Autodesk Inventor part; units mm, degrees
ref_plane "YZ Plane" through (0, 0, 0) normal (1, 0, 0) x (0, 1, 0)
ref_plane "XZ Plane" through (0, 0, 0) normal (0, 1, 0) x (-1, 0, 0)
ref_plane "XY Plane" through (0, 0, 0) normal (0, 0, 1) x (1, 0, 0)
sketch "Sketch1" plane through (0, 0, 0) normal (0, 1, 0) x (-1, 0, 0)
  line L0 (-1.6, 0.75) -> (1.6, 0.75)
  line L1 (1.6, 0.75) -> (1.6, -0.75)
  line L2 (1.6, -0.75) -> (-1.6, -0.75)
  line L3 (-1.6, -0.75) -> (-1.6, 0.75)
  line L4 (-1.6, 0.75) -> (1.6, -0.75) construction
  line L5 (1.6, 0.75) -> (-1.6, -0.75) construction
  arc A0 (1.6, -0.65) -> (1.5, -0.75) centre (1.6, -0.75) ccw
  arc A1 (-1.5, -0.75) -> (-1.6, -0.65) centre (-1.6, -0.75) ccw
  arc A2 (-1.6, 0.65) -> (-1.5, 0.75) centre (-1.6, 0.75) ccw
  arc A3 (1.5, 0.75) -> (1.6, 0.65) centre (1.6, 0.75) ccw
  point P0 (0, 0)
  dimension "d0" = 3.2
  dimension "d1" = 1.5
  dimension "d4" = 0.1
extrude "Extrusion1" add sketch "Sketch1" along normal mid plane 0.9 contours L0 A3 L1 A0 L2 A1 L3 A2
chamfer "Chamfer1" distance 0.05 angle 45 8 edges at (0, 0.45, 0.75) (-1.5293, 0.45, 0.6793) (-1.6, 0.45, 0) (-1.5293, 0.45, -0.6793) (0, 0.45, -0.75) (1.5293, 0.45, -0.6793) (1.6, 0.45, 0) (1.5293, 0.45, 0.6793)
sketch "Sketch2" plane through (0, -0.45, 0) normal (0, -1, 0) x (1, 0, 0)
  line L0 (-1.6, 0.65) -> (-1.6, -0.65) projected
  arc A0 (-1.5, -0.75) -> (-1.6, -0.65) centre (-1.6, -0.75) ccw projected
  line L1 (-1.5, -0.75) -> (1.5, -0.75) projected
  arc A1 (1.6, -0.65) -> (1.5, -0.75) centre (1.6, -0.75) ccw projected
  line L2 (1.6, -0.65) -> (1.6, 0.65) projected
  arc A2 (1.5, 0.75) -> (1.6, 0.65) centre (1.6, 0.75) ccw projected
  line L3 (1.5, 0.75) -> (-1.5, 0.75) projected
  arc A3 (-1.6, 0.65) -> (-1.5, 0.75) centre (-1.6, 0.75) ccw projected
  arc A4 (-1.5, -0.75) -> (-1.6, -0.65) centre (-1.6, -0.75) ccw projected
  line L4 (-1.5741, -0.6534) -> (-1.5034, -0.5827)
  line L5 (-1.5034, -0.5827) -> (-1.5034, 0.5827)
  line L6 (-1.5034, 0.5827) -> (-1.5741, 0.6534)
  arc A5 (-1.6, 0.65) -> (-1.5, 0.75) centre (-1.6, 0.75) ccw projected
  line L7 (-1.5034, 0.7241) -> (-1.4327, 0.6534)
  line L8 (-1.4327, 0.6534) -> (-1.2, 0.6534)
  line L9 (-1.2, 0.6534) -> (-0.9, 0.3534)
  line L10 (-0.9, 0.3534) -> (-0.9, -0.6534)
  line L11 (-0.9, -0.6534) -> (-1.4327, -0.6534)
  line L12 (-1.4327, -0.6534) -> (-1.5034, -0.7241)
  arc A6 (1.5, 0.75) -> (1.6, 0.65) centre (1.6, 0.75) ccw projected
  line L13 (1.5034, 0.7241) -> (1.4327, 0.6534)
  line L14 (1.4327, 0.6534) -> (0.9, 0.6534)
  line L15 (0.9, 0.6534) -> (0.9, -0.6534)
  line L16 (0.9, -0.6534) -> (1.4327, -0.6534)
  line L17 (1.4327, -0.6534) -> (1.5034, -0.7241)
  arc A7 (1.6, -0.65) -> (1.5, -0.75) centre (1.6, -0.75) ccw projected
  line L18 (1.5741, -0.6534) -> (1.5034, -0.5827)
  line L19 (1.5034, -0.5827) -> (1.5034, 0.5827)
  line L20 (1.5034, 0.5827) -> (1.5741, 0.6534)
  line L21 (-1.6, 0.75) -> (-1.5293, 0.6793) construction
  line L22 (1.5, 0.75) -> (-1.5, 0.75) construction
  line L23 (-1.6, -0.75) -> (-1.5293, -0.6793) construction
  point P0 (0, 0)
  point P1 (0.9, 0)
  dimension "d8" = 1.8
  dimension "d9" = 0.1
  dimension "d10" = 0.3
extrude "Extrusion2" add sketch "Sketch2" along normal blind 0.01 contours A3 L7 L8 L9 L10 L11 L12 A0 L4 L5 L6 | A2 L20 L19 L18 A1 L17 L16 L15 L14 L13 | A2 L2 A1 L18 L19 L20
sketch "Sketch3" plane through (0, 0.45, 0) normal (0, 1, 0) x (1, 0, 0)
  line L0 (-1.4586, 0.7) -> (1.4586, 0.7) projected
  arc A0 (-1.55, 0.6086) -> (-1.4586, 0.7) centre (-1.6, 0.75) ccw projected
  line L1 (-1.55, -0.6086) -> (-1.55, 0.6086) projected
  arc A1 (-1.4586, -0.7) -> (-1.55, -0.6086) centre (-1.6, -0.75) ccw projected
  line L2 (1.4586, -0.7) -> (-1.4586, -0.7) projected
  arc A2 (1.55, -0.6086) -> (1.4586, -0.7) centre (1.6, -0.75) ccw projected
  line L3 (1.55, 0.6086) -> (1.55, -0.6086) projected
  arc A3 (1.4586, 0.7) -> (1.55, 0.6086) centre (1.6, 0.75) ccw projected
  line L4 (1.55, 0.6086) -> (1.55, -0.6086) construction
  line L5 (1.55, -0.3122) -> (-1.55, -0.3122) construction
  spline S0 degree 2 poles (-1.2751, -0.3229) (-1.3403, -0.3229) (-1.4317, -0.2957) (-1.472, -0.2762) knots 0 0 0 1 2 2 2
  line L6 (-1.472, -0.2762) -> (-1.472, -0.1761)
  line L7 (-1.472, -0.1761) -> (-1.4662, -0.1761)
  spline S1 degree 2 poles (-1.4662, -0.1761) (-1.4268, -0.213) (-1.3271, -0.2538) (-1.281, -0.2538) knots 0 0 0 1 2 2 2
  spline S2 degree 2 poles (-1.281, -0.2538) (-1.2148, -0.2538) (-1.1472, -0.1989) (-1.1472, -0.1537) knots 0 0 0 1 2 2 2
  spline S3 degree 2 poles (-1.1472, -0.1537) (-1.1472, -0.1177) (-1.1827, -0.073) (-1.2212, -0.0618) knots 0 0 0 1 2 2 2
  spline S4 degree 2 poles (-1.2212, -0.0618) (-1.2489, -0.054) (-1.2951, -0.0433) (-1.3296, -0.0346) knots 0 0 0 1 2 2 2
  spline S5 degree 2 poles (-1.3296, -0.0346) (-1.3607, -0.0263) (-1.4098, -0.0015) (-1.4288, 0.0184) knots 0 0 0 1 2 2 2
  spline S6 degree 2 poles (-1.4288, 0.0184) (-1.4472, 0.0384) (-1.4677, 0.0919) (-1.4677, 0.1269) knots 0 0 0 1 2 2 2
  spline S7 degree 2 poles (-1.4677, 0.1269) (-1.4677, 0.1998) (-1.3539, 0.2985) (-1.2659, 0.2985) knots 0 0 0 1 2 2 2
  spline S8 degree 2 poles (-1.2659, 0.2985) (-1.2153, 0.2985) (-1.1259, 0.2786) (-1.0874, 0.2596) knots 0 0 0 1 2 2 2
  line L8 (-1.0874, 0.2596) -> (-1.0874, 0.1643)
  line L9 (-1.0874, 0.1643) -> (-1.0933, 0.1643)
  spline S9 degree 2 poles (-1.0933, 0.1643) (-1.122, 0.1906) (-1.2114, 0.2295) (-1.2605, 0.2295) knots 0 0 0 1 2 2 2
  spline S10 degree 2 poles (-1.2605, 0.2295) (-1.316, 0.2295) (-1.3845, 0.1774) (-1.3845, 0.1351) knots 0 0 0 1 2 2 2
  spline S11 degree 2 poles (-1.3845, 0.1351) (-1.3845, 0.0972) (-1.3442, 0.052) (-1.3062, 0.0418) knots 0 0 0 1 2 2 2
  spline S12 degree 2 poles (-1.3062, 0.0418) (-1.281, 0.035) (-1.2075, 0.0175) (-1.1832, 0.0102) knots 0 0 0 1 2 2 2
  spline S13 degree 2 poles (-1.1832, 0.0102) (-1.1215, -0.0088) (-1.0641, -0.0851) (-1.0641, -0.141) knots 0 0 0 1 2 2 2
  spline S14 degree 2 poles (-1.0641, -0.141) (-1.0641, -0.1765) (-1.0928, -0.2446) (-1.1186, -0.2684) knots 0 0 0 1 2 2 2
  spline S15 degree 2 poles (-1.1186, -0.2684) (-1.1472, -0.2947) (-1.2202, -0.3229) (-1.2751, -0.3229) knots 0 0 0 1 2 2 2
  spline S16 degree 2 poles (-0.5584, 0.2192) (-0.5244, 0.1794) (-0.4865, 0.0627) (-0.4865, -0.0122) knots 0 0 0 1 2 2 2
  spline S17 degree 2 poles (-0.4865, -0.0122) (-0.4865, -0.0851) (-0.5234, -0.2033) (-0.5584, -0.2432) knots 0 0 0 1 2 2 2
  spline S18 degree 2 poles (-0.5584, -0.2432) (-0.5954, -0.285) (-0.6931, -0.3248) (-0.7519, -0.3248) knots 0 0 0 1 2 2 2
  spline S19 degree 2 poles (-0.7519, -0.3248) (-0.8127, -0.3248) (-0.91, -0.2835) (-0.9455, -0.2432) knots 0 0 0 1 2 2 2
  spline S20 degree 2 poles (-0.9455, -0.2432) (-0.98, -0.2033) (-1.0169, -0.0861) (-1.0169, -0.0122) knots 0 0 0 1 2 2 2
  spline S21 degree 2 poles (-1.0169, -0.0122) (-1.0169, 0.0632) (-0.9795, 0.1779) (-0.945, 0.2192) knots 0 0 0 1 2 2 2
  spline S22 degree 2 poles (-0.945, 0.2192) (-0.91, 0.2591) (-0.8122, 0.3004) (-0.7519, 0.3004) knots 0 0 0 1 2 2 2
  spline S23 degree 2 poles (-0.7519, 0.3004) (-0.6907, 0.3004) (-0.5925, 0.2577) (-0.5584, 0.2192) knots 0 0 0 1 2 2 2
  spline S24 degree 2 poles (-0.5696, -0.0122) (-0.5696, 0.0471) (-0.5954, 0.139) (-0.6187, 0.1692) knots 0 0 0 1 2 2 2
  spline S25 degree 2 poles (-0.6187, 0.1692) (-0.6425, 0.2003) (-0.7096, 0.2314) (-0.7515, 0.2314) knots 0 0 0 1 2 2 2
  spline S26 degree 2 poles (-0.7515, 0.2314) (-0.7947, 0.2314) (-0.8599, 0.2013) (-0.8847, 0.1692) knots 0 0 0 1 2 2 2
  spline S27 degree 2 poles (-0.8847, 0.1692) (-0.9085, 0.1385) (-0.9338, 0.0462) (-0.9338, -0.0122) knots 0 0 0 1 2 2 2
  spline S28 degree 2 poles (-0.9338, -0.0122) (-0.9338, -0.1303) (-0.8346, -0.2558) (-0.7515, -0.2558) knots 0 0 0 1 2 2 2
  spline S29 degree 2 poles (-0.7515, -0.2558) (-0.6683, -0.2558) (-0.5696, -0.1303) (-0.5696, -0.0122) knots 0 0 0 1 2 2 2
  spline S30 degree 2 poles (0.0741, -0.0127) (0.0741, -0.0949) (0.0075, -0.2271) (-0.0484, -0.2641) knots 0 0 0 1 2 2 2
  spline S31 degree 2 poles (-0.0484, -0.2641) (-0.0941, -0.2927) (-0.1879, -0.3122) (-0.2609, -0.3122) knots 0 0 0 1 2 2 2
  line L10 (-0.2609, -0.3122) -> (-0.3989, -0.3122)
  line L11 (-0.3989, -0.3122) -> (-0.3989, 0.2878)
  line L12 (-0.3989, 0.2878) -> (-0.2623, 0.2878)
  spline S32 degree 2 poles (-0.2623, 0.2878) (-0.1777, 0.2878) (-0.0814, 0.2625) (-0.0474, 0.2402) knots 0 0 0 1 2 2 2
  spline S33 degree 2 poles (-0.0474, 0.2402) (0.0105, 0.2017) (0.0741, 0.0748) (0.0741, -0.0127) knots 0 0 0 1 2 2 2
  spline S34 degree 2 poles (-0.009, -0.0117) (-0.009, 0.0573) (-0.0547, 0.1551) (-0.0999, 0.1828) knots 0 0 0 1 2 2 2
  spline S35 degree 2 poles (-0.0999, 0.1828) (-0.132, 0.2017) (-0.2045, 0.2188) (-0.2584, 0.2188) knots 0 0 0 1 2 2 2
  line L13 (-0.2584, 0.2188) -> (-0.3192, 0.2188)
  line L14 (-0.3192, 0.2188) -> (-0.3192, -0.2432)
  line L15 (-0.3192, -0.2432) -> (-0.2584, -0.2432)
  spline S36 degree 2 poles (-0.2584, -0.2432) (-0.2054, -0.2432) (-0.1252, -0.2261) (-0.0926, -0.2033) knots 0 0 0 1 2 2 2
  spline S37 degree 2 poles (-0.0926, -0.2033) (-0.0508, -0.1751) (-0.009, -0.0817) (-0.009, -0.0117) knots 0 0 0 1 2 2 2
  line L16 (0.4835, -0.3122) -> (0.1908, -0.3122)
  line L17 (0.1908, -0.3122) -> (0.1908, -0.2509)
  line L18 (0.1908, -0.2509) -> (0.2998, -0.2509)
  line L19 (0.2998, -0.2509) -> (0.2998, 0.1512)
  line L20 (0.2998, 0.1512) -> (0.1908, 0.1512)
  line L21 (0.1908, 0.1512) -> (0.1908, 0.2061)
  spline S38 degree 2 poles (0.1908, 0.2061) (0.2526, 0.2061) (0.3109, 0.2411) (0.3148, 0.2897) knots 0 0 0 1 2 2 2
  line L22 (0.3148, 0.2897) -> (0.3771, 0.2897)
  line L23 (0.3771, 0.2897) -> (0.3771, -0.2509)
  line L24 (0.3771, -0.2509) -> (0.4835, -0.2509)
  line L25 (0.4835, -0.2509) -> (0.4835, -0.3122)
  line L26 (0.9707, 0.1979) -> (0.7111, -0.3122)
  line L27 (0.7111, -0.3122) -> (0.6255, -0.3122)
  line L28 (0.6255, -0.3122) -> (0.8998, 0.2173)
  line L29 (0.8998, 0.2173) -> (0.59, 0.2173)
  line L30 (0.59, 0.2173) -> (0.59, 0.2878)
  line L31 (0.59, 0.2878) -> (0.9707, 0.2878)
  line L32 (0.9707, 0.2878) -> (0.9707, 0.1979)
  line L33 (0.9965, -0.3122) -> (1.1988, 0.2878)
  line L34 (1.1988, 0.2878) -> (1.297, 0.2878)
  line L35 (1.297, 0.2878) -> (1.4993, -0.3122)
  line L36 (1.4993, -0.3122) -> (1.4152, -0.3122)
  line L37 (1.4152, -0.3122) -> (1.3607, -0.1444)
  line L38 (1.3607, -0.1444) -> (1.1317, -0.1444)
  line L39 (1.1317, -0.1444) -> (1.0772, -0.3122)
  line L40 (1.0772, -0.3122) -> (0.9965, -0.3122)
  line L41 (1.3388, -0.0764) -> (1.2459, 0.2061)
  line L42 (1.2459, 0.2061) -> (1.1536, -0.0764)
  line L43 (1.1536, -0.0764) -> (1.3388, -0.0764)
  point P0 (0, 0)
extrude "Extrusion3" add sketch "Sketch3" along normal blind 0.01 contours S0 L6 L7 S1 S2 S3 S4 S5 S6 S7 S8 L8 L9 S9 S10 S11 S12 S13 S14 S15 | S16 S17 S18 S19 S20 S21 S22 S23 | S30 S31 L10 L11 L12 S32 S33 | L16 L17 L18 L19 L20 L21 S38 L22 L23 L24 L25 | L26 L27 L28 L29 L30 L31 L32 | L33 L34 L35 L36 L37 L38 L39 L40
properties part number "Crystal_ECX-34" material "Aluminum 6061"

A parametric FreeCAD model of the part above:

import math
import FreeCAD as App
import Part
import Sketcher


def edges_at(feature, points):
    """Names of the edges that pass closest to the given points."""
    edges = feature.Shape.Edges
    near = lambda p: min(range(len(edges)), key=lambda i: edges[i].distToShape(Part.Vertex(*p))[0])
    return sorted({f"Edge{near(p) + 1}" for p in points})

doc = App.newDocument("Part")
body = doc.addObject("PartDesign::Body", "Body")

# Sketch on XZ plane
sketch1 = body.newObject("Sketcher::SketchObject", "Sketch")
sketch1.AttachmentSupport = (doc.getObject("XZ_Plane"), [""])
sketch1.MapMode = "FlatFace"
sketch1.addGeometry([
    Part.LineSegment(App.Vector(-1.5, 0.75, 0), App.Vector(1.5, 0.75, 0)),  # 0
    Part.ArcOfCircle(Part.Circle(App.Vector(1.6, 0.75, 0), App.Vector(0, 0, 1), 0.1), math.radians(180), math.radians(270)),  # 1
    Part.LineSegment(App.Vector(1.6, 0.65, 0), App.Vector(1.6, -0.65, 0)),  # 2
    Part.ArcOfCircle(Part.Circle(App.Vector(1.6, -0.75, 0), App.Vector(0, 0, 1), 0.1), math.radians(90), math.radians(180)),  # 3
    Part.LineSegment(App.Vector(1.5, -0.75, 0), App.Vector(-1.5, -0.75, 0)),  # 4
    Part.ArcOfCircle(Part.Circle(App.Vector(-1.6, -0.75, 0), App.Vector(0, 0, 1), 0.1), math.radians(0), math.radians(90)),  # 5
    Part.LineSegment(App.Vector(-1.6, -0.65, 0), App.Vector(-1.6, 0.65, 0)),  # 6
    Part.ArcOfCircle(Part.Circle(App.Vector(-1.6, 0.75, 0), App.Vector(0, 0, 1), 0.1), math.radians(-90), math.radians(0)),  # 7
], False)
sketch1.addConstraint([
    Sketcher.Constraint("Coincident", 0, 2, 1, 1),
    Sketcher.Constraint("Coincident", 1, 2, 2, 1),
    Sketcher.Constraint("Coincident", 2, 2, 3, 1),
    Sketcher.Constraint("Coincident", 3, 2, 4, 1),
    Sketcher.Constraint("Coincident", 4, 2, 5, 1),
    Sketcher.Constraint("Coincident", 5, 2, 6, 1),
    Sketcher.Constraint("Coincident", 6, 2, 7, 1),
    Sketcher.Constraint("Coincident", 7, 2, 0, 1),
    Sketcher.Constraint("Horizontal", 0),
    Sketcher.Constraint("Vertical", 2),
    Sketcher.Constraint("Horizontal", 4),
    Sketcher.Constraint("Vertical", 6),
    Sketcher.Constraint("Equal", 1, 3),
    Sketcher.Constraint("Equal", 3, 5),
    Sketcher.Constraint("Equal", 5, 7),
    Sketcher.Constraint("Symmetric", 1, 3, 5, 3, -1, 1),
    Sketcher.Constraint("Symmetric", 3, 3, 7, 3, -1, 1),
    Sketcher.Constraint("Symmetric", 3, 3, 5, 3, -2),
    Sketcher.Constraint("Horizontal", 7, 3, 0, 2),
    Sketcher.Constraint("Horizontal", 5, 3, 3, 2),
    Sketcher.Constraint("Vertical", 3, 3, 1, 2),
    Sketcher.Constraint("Vertical", 7, 3, 5, 2),
    Sketcher.Constraint("Radius", 1, 0.1),
    Sketcher.Constraint("DistanceX", -1, 1, 0, 2, 1.5),
    Sketcher.Constraint("DistanceY", 3, 3, 1, 3, 1.5),
])
pad1 = body.newObject("PartDesign::Pad", "Pad")
pad1.Profile = sketch1
pad1.Length = 0.9
pad1.Midplane = True
doc.recompute()

chamfer = body.newObject("PartDesign::Chamfer", "Chamfer")
chamfer.Base = (pad1, edges_at(pad1, [
    (0, 0.45, 0.75),
    (-1.529, 0.45, 0.679),
    (-1.6, 0.45, 0),
    (-1.529, 0.45, -0.679),
    (0, 0.45, -0.75),
    (1.529, 0.45, -0.679),
    (1.6, 0.45, 0),
    (1.529, 0.45, 0.679),
]))
chamfer.Size = 0.05

# Sketch on XZ plane
sketch2 = body.newObject("Sketcher::SketchObject", "Sketch001")
sketch2.AttachmentSupport = (doc.getObject("XZ_Plane"), [""])
sketch2.MapMode = "FlatFace"
sketch2.AttachmentOffset = App.Placement(App.Vector(0, 0, 0.45), App.Rotation())
sketch2.addGeometry([
    Part.ArcOfCircle(Part.Circle(App.Vector(-1.6, 0.75, 0), App.Vector(0, 0, 1), 0.1), math.radians(-74.991087), math.radians(-15.008913)),  # 0
    Part.LineSegment(App.Vector(-1.5741, 0.6534, 0), App.Vector(-1.5034, 0.5827, 0)),  # 1
    Part.LineSegment(App.Vector(-1.5034, 0.5827, 0), App.Vector(-1.5034, -0.5827, 0)),  # 2
    Part.LineSegment(App.Vector(-1.5034, -0.5827, 0), App.Vector(-1.5741, -0.6534, 0)),  # 3
    Part.ArcOfCircle(Part.Circle(App.Vector(-1.6, -0.75, 0), App.Vector(0, 0, 1), 0.1), math.radians(15.008913), math.radians(74.991087)),  # 4
    Part.LineSegment(App.Vector(-1.5034, -0.7241, 0), App.Vector(-1.4327, -0.6534, 0)),  # 5
    Part.LineSegment(App.Vector(-1.4327, -0.6534, 0), App.Vector(-0.9, -0.6534, 0)),  # 6
    Part.LineSegment(App.Vector(-0.9, -0.6534, 0), App.Vector(-0.9, 0.3534, 0)),  # 7
    Part.LineSegment(App.Vector(-0.9, 0.3534, 0), App.Vector(-1.2, 0.6534, 0)),  # 8
    Part.LineSegment(App.Vector(-1.2, 0.6534, 0), App.Vector(-1.4327, 0.6534, 0)),  # 9
    Part.LineSegment(App.Vector(-1.4327, 0.6534, 0), App.Vector(-1.5034, 0.7241, 0)),  # 10
    Part.LineSegment(App.Vector(1.5034, 0.7241, 0), App.Vector(1.4327, 0.6534, 0)),  # 11
    Part.LineSegment(App.Vector(1.4327, 0.6534, 0), App.Vector(0.9, 0.6534, 0)),  # 12
    Part.LineSegment(App.Vector(0.9, 0.6534, 0), App.Vector(0.9, -0.6534, 0)),  # 13
    Part.LineSegment(App.Vector(0.9, -0.6534, 0), App.Vector(1.4327, -0.6534, 0)),  # 14
    Part.LineSegment(App.Vector(1.4327, -0.6534, 0), App.Vector(1.5034, -0.7241, 0)),  # 15
    Part.ArcOfCircle(Part.Circle(App.Vector(1.6, -0.75, 0), App.Vector(0, 0, 1), 0.1), math.radians(90), math.radians(164.991087)),  # 16
    Part.LineSegment(App.Vector(1.6, -0.65, 0), App.Vector(1.6, 0.65, 0)),  # 17
    Part.ArcOfCircle(Part.Circle(App.Vector(1.6, 0.75, 0), App.Vector(0, 0, 1), 0.1), math.radians(-164.991087), math.radians(-90)),  # 18
], False)
sketch2.addConstraint([
    Sketcher.Constraint("Coincident", 0, 1, 1, 1),
    Sketcher.Constraint("Coincident", 1, 2, 2, 1),
    Sketcher.Constraint("Coincident", 2, 2, 3, 1),
    Sketcher.Constraint("Coincident", 3, 2, 4, 2),
    Sketcher.Constraint("Coincident", 4, 1, 5, 1),
    Sketcher.Constraint("Coincident", 5, 2, 6, 1),
    Sketcher.Constraint("Coincident", 6, 2, 7, 1),
    Sketcher.Constraint("Coincident", 7, 2, 8, 1),
    Sketcher.Constraint("Coincident", 8, 2, 9, 1),
    Sketcher.Constraint("Coincident", 9, 2, 10, 1),
    Sketcher.Constraint("Coincident", 10, 2, 0, 2),
    Sketcher.Constraint("Coincident", 11, 2, 12, 1),
    Sketcher.Constraint("Coincident", 12, 2, 13, 1),
    Sketcher.Constraint("Coincident", 13, 2, 14, 1),
    Sketcher.Constraint("Coincident", 14, 2, 15, 1),
    Sketcher.Constraint("Coincident", 15, 2, 16, 2),
    Sketcher.Constraint("Coincident", 16, 1, 17, 1),
    Sketcher.Constraint("Coincident", 17, 2, 18, 2),
    Sketcher.Constraint("Coincident", 18, 1, 11, 1),
    Sketcher.Constraint("Vertical", 2),
    Sketcher.Constraint("Horizontal", 6),
    Sketcher.Constraint("Vertical", 7),
    Sketcher.Constraint("Horizontal", 9),
    Sketcher.Constraint("Horizontal", 12),
    Sketcher.Constraint("Vertical", 13),
    Sketcher.Constraint("Horizontal", 14),
    Sketcher.Constraint("Vertical", 17),
    Sketcher.Constraint("Equal", 0, 4),
    Sketcher.Constraint("Equal", 4, 16),
    Sketcher.Constraint("Equal", 16, 18),
    Sketcher.Constraint("Symmetric", 0, 3, 16, 3, -1, 1),
    Sketcher.Constraint("Symmetric", 4, 3, 18, 3, -1, 1),
    Sketcher.Constraint("Symmetric", 5, 2, 11, 2, -1, 1),
    Sketcher.Constraint("Symmetric", 9, 2, 14, 2, -1, 1),
    Sketcher.Constraint("Symmetric", 4, 3, 16, 3, -2),
    Sketcher.Constraint("Symmetric", 9, 2, 11, 2, -2),
    Sketcher.Constraint("Perpendicular", 1, 3),
    Sketcher.Constraint("Parallel", 3, 5),
    Sketcher.Constraint("Perpendicular", 5, 8),
    Sketcher.Constraint("Parallel", 8, 10),
    Sketcher.Constraint("Perpendicular", 10, 11),
    Sketcher.Constraint("Perpendicular", 11, 15),
    Sketcher.Constraint("Horizontal", 3, 2, 5, 2),
    Sketcher.Constraint("Horizontal", 0, 1, 8, 2),
    Sketcher.Constraint("Horizontal", 4, 1, 15, 2),
    Sketcher.Constraint("Vertical", 2, 2, 4, 1),
    Sketcher.Constraint("Vertical", 18, 3, 16, 1),
    Sketcher.Constraint("Equal", 6, 12),
    Sketcher.Constraint("Equal", 3, 5),
    Sketcher.Constraint("Radius", 0, 0.1),
    Sketcher.Constraint("Distance", 1, 0.1),
    Sketcher.Constraint("DistanceY", 7, 2, 0, 1, 0.3),
    Sketcher.Constraint("DistanceX", 7, 2, 12, 2, 1.8),
    Sketcher.Constraint("DistanceY", 17, 1, 17, 2, 1.3),
    Sketcher.Constraint("DistanceX", 0, 3, -1, 1, 1.6),
])
pad2 = body.newObject("PartDesign::Pad", "Pad001")
pad2.Profile = sketch2
pad2.Length = 0.01

# Sketch on XZ plane
sketch3 = body.newObject("Sketcher::SketchObject", "Sketch002")
sketch3.AttachmentSupport = (doc.getObject("XZ_Plane"), [""])
sketch3.MapMode = "FlatFace"
sketch3.AttachmentOffset = App.Placement(App.Vector(0, 0, -0.45), App.Rotation())
sketch3.addGeometry([
    Part.BSplineCurve([App.Vector(-1.2751, 0.3229, 0), App.Vector(-1.3403, 0.3229, 0), App.Vector(-1.4317, 0.2957, 0), App.Vector(-1.472, 0.2762, 0)], [3, 1, 3], [0, 1, 2], False, 2, [1, 1, 1, 1], False),  # 0
    Part.BSplineCurve([App.Vector(-1.1186, 0.2684, 0), App.Vector(-1.1472, 0.2947, 0), App.Vector(-1.2202, 0.3229, 0), App.Vector(-1.2751, 0.3229, 0)], [3, 1, 3], [0, 1, 2], False, 2, [1, 1, 1, 1], False),  # 1
    Part.BSplineCurve([App.Vector(-1.0641, 0.141, 0), App.Vector(-1.0641, 0.1765, 0), App.Vector(-1.0928, 0.2446, 0), App.Vector(-1.1186, 0.2684, 0)], [3, 1, 3], [0, 1, 2], False, 2, [1, 1, 1, 1], False),  # 2
    Part.BSplineCurve([App.Vector(-1.1832, -0.0102, 0), App.Vector(-1.1215, 0.0088, 0), App.Vector(-1.0641, 0.0851, 0), App.Vector(-1.0641, 0.141, 0)], [3, 1, 3], [0, 1, 2], False, 2, [1, 1, 1, 1], False),  # 3
    Part.BSplineCurve([App.Vector(-1.3062, -0.0418, 0), App.Vector(-1.281, -0.035, 0), App.Vector(-1.2075, -0.0175, 0), App.Vector(-1.1832, -0.0102, 0)], [3, 1, 3], [0, 1, 2], False, 2, [1, 1, 1, 1], False),  # 4
    Part.BSplineCurve([App.Vector(-1.3845, -0.1351, 0), App.Vector(-1.3845, -0.0972, 0), App.Vector(-1.3442, -0.052, 0), App.Vector(-1.3062, -0.0418, 0)], [3, 1, 3], [0, 1, 2], False, 2, [1, 1, 1, 1], False),  # 5
    Part.BSplineCurve([App.Vector(-1.2605, -0.2295, 0), App.Vector(-1.316, -0.2295, 0), App.Vector(-1.3845, -0.1774, 0), App.Vector(-1.3845, -0.1351, 0)], [3, 1, 3], [0, 1, 2], False, 2, [1, 1, 1, 1], False),  # 6
    Part.BSplineCurve([App.Vector(-1.0933, -0.1643, 0), App.Vector(-1.122, -0.1906, 0), App.Vector(-1.2114, -0.2295, 0), App.Vector(-1.2605, -0.2295, 0)], [3, 1, 3], [0, 1, 2], False, 2, [1, 1, 1, 1], False),  # 7
    Part.LineSegment(App.Vector(-1.0933, -0.1643, 0), App.Vector(-1.0874, -0.1643, 0)),  # 8
    Part.LineSegment(App.Vector(-1.0874, -0.1643, 0), App.Vector(-1.0874, -0.2596, 0)),  # 9
    Part.BSplineCurve([App.Vector(-1.2659, -0.2985, 0), App.Vector(-1.2153, -0.2985, 0), App.Vector(-1.1259, -0.2786, 0), App.Vector(-1.0874, -0.2596, 0)], [3, 1, 3], [0, 1, 2], False, 2, [1, 1, 1, 1], False),  # 10
    Part.BSplineCurve([App.Vector(-1.4677, -0.1269, 0), App.Vector(-1.4677, -0.1998, 0), App.Vector(-1.3539, -0.2985, 0), App.Vector(-1.2659, -0.2985, 0)], [3, 1, 3], [0, 1, 2], False, 2, [1, 1, 1, 1], False),  # 11
    Part.BSplineCurve([App.Vector(-1.4288, -0.0184, 0), App.Vector(-1.4472, -0.0384, 0), App.Vector(-1.4677, -0.0919, 0), App.Vector(-1.4677, -0.1269, 0)], [3, 1, 3], [0, 1, 2], False, 2, [1, 1, 1, 1], False),  # 12
    Part.BSplineCurve([App.Vector(-1.3296, 0.0346, 0), App.Vector(-1.3607, 0.0263, 0), App.Vector(-1.4098, 0.0015, 0), App.Vector(-1.4288, -0.0184, 0)], [3, 1, 3], [0, 1, 2], False, 2, [1, 1, 1, 1], False),  # 13
    Part.BSplineCurve([App.Vector(-1.2212, 0.0618, 0), App.Vector(-1.2489, 0.054, 0), App.Vector(-1.2951, 0.0433, 0), App.Vector(-1.3296, 0.0346, 0)], [3, 1, 3], [0, 1, 2], False, 2, [1, 1, 1, 1], False),  # 14
    Part.BSplineCurve([App.Vector(-1.1472, 0.1537, 0), App.Vector(-1.1472, 0.1177, 0), App.Vector(-1.1827, 0.073, 0), App.Vector(-1.2212, 0.0618, 0)], [3, 1, 3], [0, 1, 2], False, 2, [1, 1, 1, 1], False),  # 15
    Part.BSplineCurve([App.Vector(-1.281, 0.2538, 0), App.Vector(-1.2148, 0.2538, 0), App.Vector(-1.1472, 0.1989, 0), App.Vector(-1.1472, 0.1537, 0)], [3, 1, 3], [0, 1, 2], False, 2, [1, 1, 1, 1], False),  # 16
    Part.BSplineCurve([App.Vector(-1.4662, 0.1761, 0), App.Vector(-1.4268, 0.213, 0), App.Vector(-1.3271, 0.2538, 0), App.Vector(-1.281, 0.2538, 0)], [3, 1, 3], [0, 1, 2], False, 2, [1, 1, 1, 1], False),  # 17
    Part.LineSegment(App.Vector(-1.4662, 0.1761, 0), App.Vector(-1.472, 0.1761, 0)),  # 18
    Part.LineSegment(App.Vector(-1.472, 0.1761, 0), App.Vector(-1.472, 0.2762, 0)),  # 19
    Part.BSplineCurve([App.Vector(-0.5584, -0.2192, 0), App.Vector(-0.5244, -0.1794, 0), App.Vector(-0.4865, -0.0627, 0), App.Vector(-0.4865, 0.0122, 0)], [3, 1, 3], [0, 1, 2], False, 2, [1, 1, 1, 1], False),  # 20
    Part.BSplineCurve([App.Vector(-0.7519, -0.3004, 0), App.Vector(-0.6907, -0.3004, 0), App.Vector(-0.5925, -0.2577, 0), App.Vector(-0.5584, -0.2192, 0)], [3, 1, 3], [0, 1, 2], False, 2, [1, 1, 1, 1], False),  # 21
    Part.BSplineCurve([App.Vector(-0.945, -0.2192, 0), App.Vector(-0.91, -0.2591, 0), App.Vector(-0.8122, -0.3004, 0), App.Vector(-0.7519, -0.3004, 0)], [3, 1, 3], [0, 1, 2], False, 2, [1, 1, 1, 1], False),  # 22
    Part.BSplineCurve([App.Vector(-1.0169, 0.0122, 0), App.Vector(-1.0169, -0.0632, 0), App.Vector(-0.9795, -0.1779, 0), App.Vector(-0.945, -0.2192, 0)], [3, 1, 3], [0, 1, 2], False, 2, [1, 1, 1, 1], False),  # 23
    Part.BSplineCurve([App.Vector(-0.9455, 0.2432, 0), App.Vector(-0.98, 0.2033, 0), App.Vector(-1.0169, 0.0861, 0), App.Vector(-1.0169, 0.0122, 0)], [3, 1, 3], [0, 1, 2], False, 2, [1, 1, 1, 1], False),  # 24
    Part.BSplineCurve([App.Vector(-0.7519, 0.3248, 0), App.Vector(-0.8127, 0.3248, 0), App.Vector(-0.91, 0.2835, 0), App.Vector(-0.9455, 0.2432, 0)], [3, 1, 3], [0, 1, 2], False, 2, [1, 1, 1, 1], False),  # 25
    Part.BSplineCurve([App.Vector(-0.5584, 0.2432, 0), App.Vector(-0.5954, 0.285, 0), App.Vector(-0.6931, 0.3248, 0), App.Vector(-0.7519, 0.3248, 0)], [3, 1, 3], [0, 1, 2], False, 2, [1, 1, 1, 1], False),  # 26
    Part.BSplineCurve([App.Vector(-0.4865, 0.0122, 0), App.Vector(-0.4865, 0.0851, 0), App.Vector(-0.5234, 0.2033, 0), App.Vector(-0.5584, 0.2432, 0)], [3, 1, 3], [0, 1, 2], False, 2, [1, 1, 1, 1], False),  # 27
    Part.BSplineCurve([App.Vector(-0.5696, 0.0122, 0), App.Vector(-0.5696, -0.0471, 0), App.Vector(-0.5954, -0.139, 0), App.Vector(-0.6187, -0.1692, 0)], [3, 1, 3], [0, 1, 2], False, 2, [1, 1, 1, 1], False),  # 28
    Part.BSplineCurve([App.Vector(-0.7515, 0.2558, 0), App.Vector(-0.6683, 0.2558, 0), App.Vector(-0.5696, 0.1303, 0), App.Vector(-0.5696, 0.0122, 0)], [3, 1, 3], [0, 1, 2], False, 2, [1, 1, 1, 1], False),  # 29
    Part.BSplineCurve([App.Vector(-0.9338, 0.0122, 0), App.Vector(-0.9338, 0.1303, 0), App.Vector(-0.8346, 0.2558, 0), App.Vector(-0.7515, 0.2558, 0)], [3, 1, 3], [0, 1, 2], False, 2, [1, 1, 1, 1], False),  # 30
    Part.BSplineCurve([App.Vector(-0.8847, -0.1692, 0), App.Vector(-0.9085, -0.1385, 0), App.Vector(-0.9338, -0.0462, 0), App.Vector(-0.9338, 0.0122, 0)], [3, 1, 3], [0, 1, 2], False, 2, [1, 1, 1, 1], False),  # 31
    Part.BSplineCurve([App.Vector(-0.7515, -0.2314, 0), App.Vector(-0.7947, -0.2314, 0), App.Vector(-0.8599, -0.2013, 0), App.Vector(-0.8847, -0.1692, 0)], [3, 1, 3], [0, 1, 2], False, 2, [1, 1, 1, 1], False),  # 32
    Part.BSplineCurve([App.Vector(-0.6187, -0.1692, 0), App.Vector(-0.6425, -0.2003, 0), App.Vector(-0.7096, -0.2314, 0), App.Vector(-0.7515, -0.2314, 0)], [3, 1, 3], [0, 1, 2], False, 2, [1, 1, 1, 1], False),  # 33
    Part.BSplineCurve([App.Vector(0.0741, 0.0127, 0), App.Vector(0.0741, 0.0949, 0), App.Vector(0.0075, 0.2271, 0), App.Vector(-0.0484, 0.2641, 0)], [3, 1, 3], [0, 1, 2], False, 2, [1, 1, 1, 1], False),  # 34
    Part.BSplineCurve([App.Vector(-0.0474, -0.2402, 0), App.Vector(0.0105, -0.2017, 0), App.Vector(0.0741, -0.0748, 0), App.Vector(0.0741, 0.0127, 0)], [3, 1, 3], [0, 1, 2], False, 2, [1, 1, 1, 1], False),  # 35
    Part.BSplineCurve([App.Vector(-0.2623, -0.2878, 0), App.Vector(-0.1777, -0.2878, 0), App.Vector(-0.0814, -0.2625, 0), App.Vector(-0.0474, -0.2402, 0)], [3, 1, 3], [0, 1, 2], False, 2, [1, 1, 1, 1], False),  # 36
    Part.LineSegment(App.Vector(-0.2623, -0.2878, 0), App.Vector(-0.3989, -0.2878, 0)),  # 37
    Part.LineSegment(App.Vector(-0.3989, -0.2878, 0), App.Vector(-0.3989, 0.3122, 0)),  # 38
    Part.LineSegment(App.Vector(-0.3989, 0.3122, 0), App.Vector(-0.2609, 0.3122, 0)),  # 39
    Part.BSplineCurve([App.Vector(-0.0484, 0.2641, 0), App.Vector(-0.0941, 0.2927, 0), App.Vector(-0.1879, 0.3122, 0), App.Vector(-0.2609, 0.3122, 0)], [3, 1, 3], [0, 1, 2], False, 2, [1, 1, 1, 1], False),  # 40
    Part.BSplineCurve([App.Vector(-0.009, 0.0117, 0), App.Vector(-0.009, -0.0573, 0), App.Vector(-0.0547, -0.1551, 0), App.Vector(-0.0999, -0.1828, 0)], [3, 1, 3], [0, 1, 2], False, 2, [1, 1, 1, 1], False),  # 41
    Part.BSplineCurve([App.Vector(-0.0926, 0.2033, 0), App.Vector(-0.0508, 0.1751, 0), App.Vector(-0.009, 0.0817, 0), App.Vector(-0.009, 0.0117, 0)], [3, 1, 3], [0, 1, 2], False, 2, [1, 1, 1, 1], False),  # 42
    Part.BSplineCurve([App.Vector(-0.2584, 0.2432, 0), App.Vector(-0.2054, 0.2432, 0), App.Vector(-0.1252, 0.2261, 0), App.Vector(-0.0926, 0.2033, 0)], [3, 1, 3], [0, 1, 2], False, 2, [1, 1, 1, 1], False),  # 43
    Part.LineSegment(App.Vector(-0.2584, 0.2432, 0), App.Vector(-0.3192, 0.2432, 0)),  # 44
    Part.LineSegment(App.Vector(-0.3192, 0.2432, 0), App.Vector(-0.3192, -0.2188, 0)),  # 45
    Part.LineSegment(App.Vector(-0.3192, -0.2188, 0), App.Vector(-0.2584, -0.2188, 0)),  # 46
    Part.BSplineCurve([App.Vector(-0.0999, -0.1828, 0), App.Vector(-0.132, -0.2017, 0), App.Vector(-0.2045, -0.2188, 0), App.Vector(-0.2584, -0.2188, 0)], [3, 1, 3], [0, 1, 2], False, 2, [1, 1, 1, 1], False),  # 47
    Part.LineSegment(App.Vector(0.1908, 0.3122, 0), App.Vector(0.4835, 0.3122, 0)),  # 48
    Part.LineSegment(App.Vector(0.4835, 0.3122, 0), App.Vector(0.4835, 0.2509, 0)),  # 49
    Part.LineSegment(App.Vector(0.4835, 0.2509, 0), App.Vector(0.3771, 0.2509, 0)),  # 50
    Part.LineSegment(App.Vector(0.3771, 0.2509, 0), App.Vector(0.3771, -0.2897, 0)),  # 51
    Part.LineSegment(App.Vector(0.3771, -0.2897, 0), App.Vector(0.3148, -0.2897, 0)),  # 52
    Part.BSplineCurve([App.Vector(0.1908, -0.2061, 0), App.Vector(0.2526, -0.2061, 0), App.Vector(0.3109, -0.2411, 0), App.Vector(0.3148, -0.2897, 0)], [3, 1, 3], [0, 1, 2], False, 2, [1, 1, 1, 1], False),  # 53
    Part.LineSegment(App.Vector(0.1908, -0.2061, 0), App.Vector(0.1908, -0.1512, 0)),  # 54
    Part.LineSegment(App.Vector(0.1908, -0.1512, 0), App.Vector(0.2998, -0.1512, 0)),  # 55
    Part.LineSegment(App.Vector(0.2998, -0.1512, 0), App.Vector(0.2998, 0.2509, 0)),  # 56
    Part.LineSegment(App.Vector(0.2998, 0.2509, 0), App.Vector(0.1908, 0.2509, 0)),  # 57
    Part.LineSegment(App.Vector(0.1908, 0.2509, 0), App.Vector(0.1908, 0.3122, 0)),  # 58
    Part.LineSegment(App.Vector(0.7111, 0.3122, 0), App.Vector(0.9707, -0.1979, 0)),  # 59
    Part.LineSegment(App.Vector(0.9707, -0.1979, 0), App.Vector(0.9707, -0.2878, 0)),  # 60
    Part.LineSegment(App.Vector(0.9707, -0.2878, 0), App.Vector(0.59, -0.2878, 0)),  # 61
    Part.LineSegment(App.Vector(0.59, -0.2878, 0), App.Vector(0.59, -0.2173, 0)),  # 62
    Part.LineSegment(App.Vector(0.59, -0.2173, 0), App.Vector(0.8998, -0.2173, 0)),  # 63
    Part.LineSegment(App.Vector(0.8998, -0.2173, 0), App.Vector(0.6255, 0.3122, 0)),  # 64
    Part.LineSegment(App.Vector(0.6255, 0.3122, 0), App.Vector(0.7111, 0.3122, 0)),  # 65
    Part.LineSegment(App.Vector(1.1988, -0.2878, 0), App.Vector(0.9965, 0.3122, 0)),  # 66
    Part.LineSegment(App.Vector(0.9965, 0.3122, 0), App.Vector(1.0772, 0.3122, 0)),  # 67
    Part.LineSegment(App.Vector(1.0772, 0.3122, 0), App.Vector(1.1317, 0.1444, 0)),  # 68
    Part.LineSegment(App.Vector(1.1317, 0.1444, 0), App.Vector(1.3607, 0.1444, 0)),  # 69
    Part.LineSegment(App.Vector(1.3607, 0.1444, 0), App.Vector(1.4152, 0.3122, 0)),  # 70
    Part.LineSegment(App.Vector(1.4152, 0.3122, 0), App.Vector(1.4993, 0.3122, 0)),  # 71
    Part.LineSegment(App.Vector(1.4993, 0.3122, 0), App.Vector(1.297, -0.2878, 0)),  # 72
    Part.LineSegment(App.Vector(1.297, -0.2878, 0), App.Vector(1.1988, -0.2878, 0)),  # 73
    Part.LineSegment(App.Vector(1.2459, -0.2061, 0), App.Vector(1.3388, 0.0764, 0)),  # 74
    Part.LineSegment(App.Vector(1.3388, 0.0764, 0), App.Vector(1.1536, 0.0764, 0)),  # 75
    Part.LineSegment(App.Vector(1.1536, 0.0764, 0), App.Vector(1.2459, -0.2061, 0)),  # 76
], False)
sketch3.addConstraint([
    Sketcher.Constraint("Block", 0),
    Sketcher.Constraint("Block", 1),
    Sketcher.Constraint("Block", 2),
    Sketcher.Constraint("Block", 3),
    Sketcher.Constraint("Block", 4),
    Sketcher.Constraint("Block", 5),
    Sketcher.Constraint("Block", 6),
    Sketcher.Constraint("Block", 7),
    Sketcher.Constraint("Block", 10),
    Sketcher.Constraint("Block", 11),
    Sketcher.Constraint("Block", 12),
    Sketcher.Constraint("Block", 13),
    Sketcher.Constraint("Block", 14),
    Sketcher.Constraint("Block", 15),
    Sketcher.Constraint("Block", 16),
    Sketcher.Constraint("Block", 17),
    Sketcher.Constraint("Block", 20),
    Sketcher.Constraint("Block", 21),
    Sketcher.Constraint("Block", 22),
    Sketcher.Constraint("Block", 23),
    Sketcher.Constraint("Block", 24),
    Sketcher.Constraint("Block", 25),
    Sketcher.Constraint("Block", 26),
    Sketcher.Constraint("Block", 27),
    Sketcher.Constraint("Block", 28),
    Sketcher.Constraint("Block", 29),
    Sketcher.Constraint("Block", 30),
    Sketcher.Constraint("Block", 31),
    Sketcher.Constraint("Block", 32),
    Sketcher.Constraint("Block", 33),
    Sketcher.Constraint("Block", 34),
    Sketcher.Constraint("Block", 35),
    Sketcher.Constraint("Block", 36),
    Sketcher.Constraint("Block", 40),
    Sketcher.Constraint("Block", 41),
    Sketcher.Constraint("Block", 42),
    Sketcher.Constraint("Block", 43),
    Sketcher.Constraint("Block", 47),
    Sketcher.Constraint("Block", 53),
    Sketcher.Constraint("Coincident", 7, 1, 8, 1),
    Sketcher.Constraint("Coincident", 8, 2, 9, 1),
    Sketcher.Constraint("Coincident", 9, 2, 10, 2),
    Sketcher.Constraint("Coincident", 17, 1, 18, 1),
    Sketcher.Constraint("Coincident", 18, 2, 19, 1),
    Sketcher.Constraint("Coincident", 19, 2, 0, 2),
    Sketcher.Constraint("Coincident", 36, 1, 37, 1),
    Sketcher.Constraint("Coincident", 37, 2, 38, 1),
    Sketcher.Constraint("Coincident", 38, 2, 39, 1),
    Sketcher.Constraint("Coincident", 39, 2, 40, 2),
    Sketcher.Constraint("Coincident", 43, 1, 44, 1),
    Sketcher.Constraint("Coincident", 44, 2, 45, 1),
    Sketcher.Constraint("Coincident", 45, 2, 46, 1),
    Sketcher.Constraint("Coincident", 46, 2, 47, 2),
    Sketcher.Constraint("Coincident", 48, 2, 49, 1),
    Sketcher.Constraint("Coincident", 49, 2, 50, 1),
    Sketcher.Constraint("Coincident", 50, 2, 51, 1),
    Sketcher.Constraint("Coincident", 51, 2, 52, 1),
    Sketcher.Constraint("Coincident", 52, 2, 53, 2),
    Sketcher.Constraint("Coincident", 53, 1, 54, 1),
    Sketcher.Constraint("Coincident", 54, 2, 55, 1),
    Sketcher.Constraint("Coincident", 55, 2, 56, 1),
    Sketcher.Constraint("Coincident", 56, 2, 57, 1),
    Sketcher.Constraint("Coincident", 57, 2, 58, 1),
    Sketcher.Constraint("Coincident", 58, 2, 48, 1),
    Sketcher.Constraint("Coincident", 59, 2, 60, 1),
    Sketcher.Constraint("Coincident", 60, 2, 61, 1),
    Sketcher.Constraint("Coincident", 61, 2, 62, 1),
    Sketcher.Constraint("Coincident", 62, 2, 63, 1),
    Sketcher.Constraint("Coincident", 63, 2, 64, 1),
    Sketcher.Constraint("Coincident", 64, 2, 65, 1),
    Sketcher.Constraint("Coincident", 65, 2, 59, 1),
    Sketcher.Constraint("Coincident", 66, 2, 67, 1),
    Sketcher.Constraint("Coincident", 67, 2, 68, 1),
    Sketcher.Constraint("Coincident", 68, 2, 69, 1),
    Sketcher.Constraint("Coincident", 69, 2, 70, 1),
    Sketcher.Constraint("Coincident", 70, 2, 71, 1),
    Sketcher.Constraint("Coincident", 71, 2, 72, 1),
    Sketcher.Constraint("Coincident", 72, 2, 73, 1),
    Sketcher.Constraint("Coincident", 73, 2, 66, 1),
    Sketcher.Constraint("Coincident", 74, 2, 75, 1),
    Sketcher.Constraint("Coincident", 75, 2, 76, 1),
    Sketcher.Constraint("Coincident", 76, 2, 74, 1),
    Sketcher.Constraint("Horizontal", 8),
    Sketcher.Constraint("Vertical", 9),
    Sketcher.Constraint("Horizontal", 18),
    Sketcher.Constraint("Vertical", 19),
    Sketcher.Constraint("Horizontal", 37),
    Sketcher.Constraint("Vertical", 38),
    Sketcher.Constraint("Horizontal", 39),
    Sketcher.Constraint("Horizontal", 44),
    Sketcher.Constraint("Vertical", 45),
    Sketcher.Constraint("Horizontal", 46),
    Sketcher.Constraint("Horizontal", 48),
    Sketcher.Constraint("Vertical", 49),
    Sketcher.Constraint("Horizontal", 50),
    Sketcher.Constraint("Vertical", 51),
    Sketcher.Constraint("Horizontal", 52),
    Sketcher.Constraint("Vertical", 54),
    Sketcher.Constraint("Horizontal", 55),
    Sketcher.Constraint("Vertical", 56),
    Sketcher.Constraint("Horizontal", 57),
    Sketcher.Constraint("Vertical", 58),
    Sketcher.Constraint("Vertical", 60),
    Sketcher.Constraint("Horizontal", 61),
    Sketcher.Constraint("Vertical", 62),
    Sketcher.Constraint("Horizontal", 63),
    Sketcher.Constraint("Horizontal", 65),
    Sketcher.Constraint("Horizontal", 67),
    Sketcher.Constraint("Horizontal", 69),
    Sketcher.Constraint("Horizontal", 71),
    Sketcher.Constraint("Horizontal", 73),
    Sketcher.Constraint("Horizontal", 75),
    Sketcher.Constraint("Horizontal", 39, 2, 48, 2),
    Sketcher.Constraint("Horizontal", 50, 2, 56, 2),
    Sketcher.Constraint("Horizontal", 37, 2, 60, 2),
    Sketcher.Constraint("Horizontal", 58, 2, 64, 2),
    Sketcher.Constraint("Horizontal", 65, 2, 66, 2),
    Sketcher.Constraint("Horizontal", 67, 2, 70, 2),
    Sketcher.Constraint("Horizontal", 61, 2, 72, 2),
    Sketcher.Constraint("Vertical", 54, 2, 57, 2),
    Sketcher.Constraint("Equal", 68, 70),
    Sketcher.Constraint("Equal", 66, 72),
    Sketcher.Constraint("Equal", 74, 76),
    Sketcher.Constraint("DistanceY", 60, 2, 60, 1, 0.09),
    Sketcher.Constraint("DistanceX", 39, 1, 39, 2, 0.138),
    Sketcher.Constraint("DistanceX", 55, 1, 55, 2, 0.109),
    Sketcher.Constraint("DistanceX", 69, 1, 69, 2, 0.229),
    Sketcher.Constraint("DistanceX", 71, 1, 71, 2, 0.084),
    Sketcher.Constraint("DistanceY", 54, 1, 54, 2, 0.055),
    Sketcher.Constraint("DistanceY", 56, 1, 56, 2, 0.402),
    Sketcher.Constraint("DistanceX", -1, 1, 61, 2, 0.59),
    Sketcher.Constraint("DistanceX", 59, 2, 69, 2, 0.39),
    Sketcher.Constraint("DistanceX", 44, 2, 44, 1, 0.0608),
    Sketcher.Constraint("DistanceX", 48, 1, 48, 2, 0.2927),
    Sketcher.Constraint("DistanceX", 50, 2, 50, 1, 0.1064),
    Sketcher.Constraint("DistanceX", 61, 2, 61, 1, 0.3807),
    Sketcher.Constraint("DistanceX", 63, 1, 63, 2, 0.3098),
    Sketcher.Constraint("DistanceX", 65, 1, 65, 2, 0.0856),
    Sketcher.Constraint("DistanceX", 67, 1, 67, 2, 0.0807),
    Sketcher.Constraint("DistanceX", 73, 2, 73, 1, 0.0982),
    Sketcher.Constraint("DistanceX", 75, 2, 75, 1, 0.1852),
    Sketcher.Constraint("DistanceY", 62, 1, 62, 2, 0.0705),
    Sketcher.Constraint("DistanceX", -1, 1, 65, 2, 0.711),
    Sketcher.Constraint("DistanceX", -1, 1, 76, 2, 1.246),
    Sketcher.Constraint("DistanceY", 76, 2, -1, 1, 0.206),
    Sketcher.Constraint("DistanceX", 64, 2, 66, 2, 0.371),
    Sketcher.Constraint("DistanceY", 74, 2, 69, 2, 0.068),
    Sketcher.Constraint("Distance", 68, 0.1764),
])
pad3 = body.newObject("PartDesign::Pad", "Pad002")
pad3.Profile = sketch3
pad3.Length = 0.01
pad3.Reversed = True

doc.recompute()
